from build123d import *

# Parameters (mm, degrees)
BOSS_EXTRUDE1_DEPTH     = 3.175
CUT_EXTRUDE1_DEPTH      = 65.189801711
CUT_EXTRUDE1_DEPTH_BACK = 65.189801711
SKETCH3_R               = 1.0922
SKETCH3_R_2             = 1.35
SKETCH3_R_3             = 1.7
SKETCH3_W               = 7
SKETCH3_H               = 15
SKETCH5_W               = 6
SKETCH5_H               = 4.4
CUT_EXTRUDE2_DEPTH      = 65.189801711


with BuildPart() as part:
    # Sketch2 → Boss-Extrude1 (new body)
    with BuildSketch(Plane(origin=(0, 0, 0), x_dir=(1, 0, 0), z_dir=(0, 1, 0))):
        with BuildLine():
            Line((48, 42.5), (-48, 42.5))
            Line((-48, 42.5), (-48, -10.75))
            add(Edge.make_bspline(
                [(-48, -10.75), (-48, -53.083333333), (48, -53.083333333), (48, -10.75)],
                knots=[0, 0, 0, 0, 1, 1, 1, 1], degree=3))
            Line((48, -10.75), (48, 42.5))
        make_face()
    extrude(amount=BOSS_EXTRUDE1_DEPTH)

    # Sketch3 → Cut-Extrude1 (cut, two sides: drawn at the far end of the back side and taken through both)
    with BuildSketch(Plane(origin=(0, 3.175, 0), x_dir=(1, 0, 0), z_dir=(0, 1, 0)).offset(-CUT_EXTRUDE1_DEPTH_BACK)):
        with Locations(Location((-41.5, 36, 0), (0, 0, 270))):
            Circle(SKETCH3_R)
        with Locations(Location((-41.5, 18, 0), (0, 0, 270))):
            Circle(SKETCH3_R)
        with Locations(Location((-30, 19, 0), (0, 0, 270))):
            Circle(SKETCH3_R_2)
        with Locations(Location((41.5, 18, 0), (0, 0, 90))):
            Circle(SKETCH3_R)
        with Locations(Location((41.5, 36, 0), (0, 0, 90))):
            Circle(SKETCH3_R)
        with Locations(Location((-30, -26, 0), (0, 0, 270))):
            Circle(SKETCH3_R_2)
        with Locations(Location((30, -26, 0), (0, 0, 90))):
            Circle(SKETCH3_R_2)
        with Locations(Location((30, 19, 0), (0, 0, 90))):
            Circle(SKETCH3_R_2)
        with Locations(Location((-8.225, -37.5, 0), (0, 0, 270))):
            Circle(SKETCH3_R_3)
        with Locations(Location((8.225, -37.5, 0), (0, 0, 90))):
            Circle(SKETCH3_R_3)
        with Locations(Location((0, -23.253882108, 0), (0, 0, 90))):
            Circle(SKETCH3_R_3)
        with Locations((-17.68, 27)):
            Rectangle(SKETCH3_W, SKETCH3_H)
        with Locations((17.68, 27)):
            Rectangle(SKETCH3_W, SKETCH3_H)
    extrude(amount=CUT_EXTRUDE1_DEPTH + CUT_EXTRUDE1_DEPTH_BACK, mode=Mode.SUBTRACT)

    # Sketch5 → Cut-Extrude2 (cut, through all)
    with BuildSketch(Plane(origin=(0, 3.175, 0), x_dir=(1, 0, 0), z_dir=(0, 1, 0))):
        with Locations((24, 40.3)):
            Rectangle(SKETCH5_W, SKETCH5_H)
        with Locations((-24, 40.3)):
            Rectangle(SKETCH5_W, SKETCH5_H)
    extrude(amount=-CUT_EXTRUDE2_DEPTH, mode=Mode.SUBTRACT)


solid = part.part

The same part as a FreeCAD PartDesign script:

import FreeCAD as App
import Part
import Sketcher
from FreeCAD import Vector
Q = App.Units.Quantity

doc = App.newDocument("Part")
body = doc.addObject("PartDesign::Body", "Body")

sketch1 = body.newObject("Sketcher::SketchObject", "Sketch")
sketch1.AttachmentSupport = (doc.getObject("XZ_Plane"), [""])
sketch1.MapMode = "FlatFace"
sketch1.addGeometry(Part.LineSegment(Vector(48, -42.5, 0), Vector(-48, -42.5, 0)), False)
sketch1.addGeometry(Part.LineSegment(Vector(-48, -42.5, 0), Vector(-48, 10.75, 0)), False)
sketch1.addGeometry(Part.BSplineCurve([Vector(-48, 10.75, 0), Vector(-48, 53.083333, 0), Vector(48, 53.083333, 0), Vector(48, 10.75, 0)], [4, 4], [0, 1], False, 3, [1, 1, 1, 1], False), False)
sketch1.addGeometry(Part.LineSegment(Vector(48, 10.75, 0), Vector(48, -42.5, 0)), False)
sketch1.addConstraint(Sketcher.Constraint("Block", 2))
sketch1.addConstraint(Sketcher.Constraint("Coincident", 0, 2, 1, 1))
sketch1.addConstraint(Sketcher.Constraint("Coincident", 1, 2, 2, 1))
sketch1.addConstraint(Sketcher.Constraint("Coincident", 2, 2, 3, 1))
sketch1.addConstraint(Sketcher.Constraint("Coincident", 3, 2, 0, 1))
sketch1.addConstraint(Sketcher.Constraint("Horizontal", 0))
sketch1.addConstraint(Sketcher.Constraint("Vertical", 1))
sketch1.addConstraint(Sketcher.Constraint("Vertical", 3))
sketch1.addConstraint(Sketcher.Constraint("DistanceY", 1, 1, 1, 2, Q("53.25 mm")))
pad1 = body.newObject("PartDesign::Pad", "Pad")
pad1.Profile = sketch1
pad1.Length = 3.175
pad1.Reversed = True

sketch2 = body.newObject("Sketcher::SketchObject", "Sketch001")
sketch2.AttachmentSupport = (doc.getObject("XZ_Plane"), [""])
sketch2.MapMode = "FlatFace"
sketch2.AttachmentOffset = App.Placement(Vector(0, 0, -3.175), App.Rotation())
sketch2.addGeometry(Part.Circle(Vector(-41.5, -36, 0), Vector(0, 0, 1), 1.0922), False)
sketch2.addGeometry(Part.Circle(Vector(-41.5, -18, 0), Vector(0, 0, 1), 1.0922), False)
sketch2.addGeometry(Part.Circle(Vector(-30, -19, 0), Vector(0, 0, 1), 1.35), False)
sketch2.addGeometry(Part.Circle(Vector(41.5, -18, 0), Vector(0, 0, 1), 1.0922), False)
sketch2.addGeometry(Part.Circle(Vector(41.5, -36, 0), Vector(0, 0, 1), 1.0922), False)
sketch2.addGeometry(Part.Circle(Vector(-30, 26, 0), Vector(0, 0, 1), 1.35), False)
sketch2.addGeometry(Part.Circle(Vector(30, 26, 0), Vector(0, 0, 1), 1.35), False)
sketch2.addGeometry(Part.Circle(Vector(30, -19, 0), Vector(0, 0, 1), 1.35), False)
sketch2.addGeometry(Part.Circle(Vector(-8.225, 37.5, 0), Vector(0, 0, 1), 1.7), False)
sketch2.addGeometry(Part.Circle(Vector(8.225, 37.5, 0), Vector(0, 0, 1), 1.7), False)
sketch2.addGeometry(Part.Circle(Vector(0, 23.253882, 0), Vector(0, 0, 1), 1.7), False)
sketch2.addGeometry(Part.LineSegment(Vector(-21.18, -34.5, 0), Vector(-21.18, -19.5, 0)), False)
sketch2.addGeometry(Part.LineSegment(Vector(-21.18, -19.5, 0), Vector(-14.18, -19.5, 0)), False)
sketch2.addGeometry(Part.LineSegment(Vector(-14.18, -19.5, 0), Vector(-14.18, -34.5, 0)), False)
sketch2.addGeometry(Part.LineSegment(Vector(-14.18, -34.5, 0), Vector(-21.18, -34.5, 0)), False)
sketch2.addGeometry(Part.LineSegment(Vector(14.18, -34.5, 0), Vector(14.18, -19.5, 0)), False)
sketch2.addGeometry(Part.LineSegment(Vector(14.18, -19.5, 0), Vector(21.18, -19.5, 0)), False)
sketch2.addGeometry(Part.LineSegment(Vector(21.18, -19.5, 0), Vector(21.18, -34.5, 0)), False)
sketch2.addGeometry(Part.LineSegment(Vector(21.18, -34.5, 0), Vector(14.18, -34.5, 0)), False)
sketch2.addConstraint(Sketcher.Constraint("Coincident", 11, 2, 12, 1))
sketch2.addConstraint(Sketcher.Constraint("Coincident", 12, 2, 13, 1))
sketch2.addConstraint(Sketcher.Constraint("Coincident", 13, 2, 14, 1))
sketch2.addConstraint(Sketcher.Constraint("Coincident", 14, 2, 11, 1))
sketch2.addConstraint(Sketcher.Constraint("Coincident", 15, 2, 16, 1))
sketch2.addConstraint(Sketcher.Constraint("Coincident", 16, 2, 17, 1))
sketch2.addConstraint(Sketcher.Constraint("Coincident", 17, 2, 18, 1))
sketch2.addConstraint(Sketcher.Constraint("Coincident", 18, 2, 15, 1))
sketch2.addConstraint(Sketcher.Constraint("Vertical", 11))
sketch2.addConstraint(Sketcher.Constraint("Horizontal", 12))
sketch2.addConstraint(Sketcher.Constraint("Vertical", 13))
sketch2.addConstraint(Sketcher.Constraint("Horizontal", 14))
sketch2.addConstraint(Sketcher.Constraint("Vertical", 15))
sketch2.addConstraint(Sketcher.Constraint("Horizontal", 16))
sketch2.addConstraint(Sketcher.Constraint("Vertical", 17))
sketch2.addConstraint(Sketcher.Constraint("Horizontal", 18))
sketch2.addConstraint(Sketcher.Constraint("Equal", 0, 1))
sketch2.addConstraint(Sketcher.Constraint("Equal", 1, 3))
sketch2.addConstraint(Sketcher.Constraint("Equal", 3, 4))
sketch2.addConstraint(Sketcher.Constraint("Equal", 2, 5))
sketch2.addConstraint(Sketcher.Constraint("Equal", 5, 6))
sketch2.addConstraint(Sketcher.Constraint("Equal", 6, 7))
sketch2.addConstraint(Sketcher.Constraint("Equal", 8, 9))
sketch2.addConstraint(Sketcher.Constraint("Equal", 9, 10))
sketch2.addConstraint(Sketcher.Constraint("Symmetric", 1, 3, 3, 3, -2))
sketch2.addConstraint(Sketcher.Constraint("Symmetric", 0, 3, 4, 3, -2))
sketch2.addConstraint(Sketcher.Constraint("Symmetric", 5, 3, 6, 3, -2))
sketch2.addConstraint(Sketcher.Constraint("Symmetric", 2, 3, 7, 3, -2))
sketch2.addConstraint(Sketcher.Constraint("Symmetric", 8, 3, 9, 3, -2))
sketch2.addConstraint(Sketcher.Constraint("Symmetric", 12, 2, 15, 2, -2))
sketch2.addConstraint(Sketcher.Constraint("Symmetric", 14, 2, 17, 2, -2))
sketch2.addConstraint(Sketcher.Constraint("PointOnObject", 10, 3, -2))
sketch2.addConstraint(Sketcher.Constraint("Vertical", 0, 3, 1, 3))
sketch2.addConstraint(Sketcher.Constraint("Vertical", 2, 3, 5, 3))
sketch2.addConstraint(Sketcher.Constraint("Diameter", 2, Q("2.7 mm")))
sketch2.addConstraint(Sketcher.Constraint("Diameter", 8, Q("3.4 mm")))
sketch2.addConstraint(Sketcher.Constraint("DistanceX", 12, 1, 12, 2, Q("7 mm")))
sketch2.addConstraint(Sketcher.Constraint("DistanceY", 11, 1, 11, 2, Q("15 mm")))
sketch2.addConstraint(Sketcher.Constraint("DistanceY", 0, 3, -1, 1, Q("36 mm")))
sketch2.addConstraint(Sketcher.Constraint("DistanceY", 1, 3, -1, 1, Q("18 mm")))
sketch2.addConstraint(Sketcher.Constraint("DistanceX", 2, 3, -1, 1, Q("30 mm")))
sketch2.addConstraint(Sketcher.Constraint("DistanceY", 2, 3, -1, 1, Q("19 mm")))
sketch2.addConstraint(Sketcher.Constraint("DistanceY", -1, 1, 5, 3, Q("26 mm")))
sketch2.addConstraint(Sketcher.Constraint("DistanceX", 1, 3, 3, 3, Q("83 mm")))
sketch2.addConstraint(Sketcher.Constraint("Diameter", 0, Q("2.1844 mm")))
sketch2.addConstraint(Sketcher.Constraint("DistanceY", -1, 1, 8, 3, Q("37.5 mm")))
sketch2.addConstraint(Sketcher.Constraint("DistanceY", 11, 2, -1, 1, Q("19.5 mm")))
sketch2.addConstraint(Sketcher.Constraint("DistanceX", 11, 2, -1, 1, Q("21.18 mm")))
sketch2.addConstraint(Sketcher.Constraint("DistanceX", 8, 3, 9, 3, Q("16.45 mm")))
sketch2.addConstraint(Sketcher.Constraint("DistanceY", -1, 1, 10, 3, Q("23.253882 mm")))
pocket1 = body.newObject("PartDesign::Pocket", "Pocket")
pocket1.Profile = sketch2
pocket1.Type = "ThroughAll"
pocket1.Midplane = True

sketch3 = body.newObject("Sketcher::SketchObject", "Sketch002")
sketch3.AttachmentSupport = (doc.getObject("XZ_Plane"), [""])
sketch3.MapMode = "FlatFace"
sketch3.AttachmentOffset = App.Placement(Vector(0, 0, -3.175), App.Rotation())
sketch3.addGeometry(Part.LineSegment(Vector(21, -42.5, 0), Vector(21, -38.1, 0)), False)
sketch3.addGeometry(Part.LineSegment(Vector(21, -38.1, 0), Vector(27, -38.1, 0)), False)
sketch3.addGeometry(Part.LineSegment(Vector(27, -38.1, 0), Vector(27, -42.5, 0)), False)
sketch3.addGeometry(Part.LineSegment(Vector(27, -42.5, 0), Vector(21, -42.5, 0)), False)
sketch3.addGeometry(Part.LineSegment(Vector(-27, -42.5, 0), Vector(-27, -38.1, 0)), False)
sketch3.addGeometry(Part.LineSegment(Vector(-27, -38.1, 0), Vector(-21, -38.1, 0)), False)
sketch3.addGeometry(Part.LineSegment(Vector(-21, -38.1, 0), Vector(-21, -42.5, 0)), False)
sketch3.addGeometry(Part.LineSegment(Vector(-21, -42.5, 0), Vector(-27, -42.5, 0)), False)
sketch3.addConstraint(Sketcher.Constraint("Coincident", 0, 2, 1, 1))
sketch3.addConstraint(Sketcher.Constraint("Coincident", 1, 2, 2, 1))
sketch3.addConstraint(Sketcher.Constraint("Coincident", 2, 2, 3, 1))
sketch3.addConstraint(Sketcher.Constraint("Coincident", 3, 2, 0, 1))
sketch3.addConstraint(Sketcher.Constraint("Coincident", 4, 2, 5, 1))
sketch3.addConstraint(Sketcher.Constraint("Coincident", 5, 2, 6, 1))
sketch3.addConstraint(Sketcher.Constraint("Coincident", 6, 2, 7, 1))
sketch3.addConstraint(Sketcher.Constraint("Coincident", 7, 2, 4, 1))
sketch3.addConstraint(Sketcher.Constraint("Vertical", 0))
sketch3.addConstraint(Sketcher.Constraint("Horizontal", 1))
sketch3.addConstraint(Sketcher.Constraint("Vertical", 2))
sketch3.addConstraint(Sketcher.Constraint("Horizontal", 3))
sketch3.addConstraint(Sketcher.Constraint("Vertical", 4))
sketch3.addConstraint(Sketcher.Constraint("Horizontal", 5))
sketch3.addConstraint(Sketcher.Constraint("Vertical", 6))
sketch3.addConstraint(Sketcher.Constraint("Horizontal", 7))
sketch3.addConstraint(Sketcher.Constraint("Symmetric", 1, 2, 4, 2, -2))
sketch3.addConstraint(Sketcher.Constraint("Symmetric", 3, 2, 6, 2, -2))
sketch3.addConstraint(Sketcher.Constraint("DistanceX", 1, 1, 1, 2, Q("6 mm")))
sketch3.addConstraint(Sketcher.Constraint("DistanceY", 0, 1, 0, 2, Q("4.4 mm")))
sketch3.addConstraint(Sketcher.Constraint("DistanceX", -1, 1, 0, 2, Q("21 mm")))
sketch3.addConstraint(Sketcher.Constraint("DistanceY", 0, 2, -1, 1, Q("38.1 mm")))
pocket2 = body.newObject("PartDesign::Pocket", "Pocket001")
pocket2.Profile = sketch3
pocket2.Type = "ThroughAll"
pocket2.Reversed = True

doc.recompute()
